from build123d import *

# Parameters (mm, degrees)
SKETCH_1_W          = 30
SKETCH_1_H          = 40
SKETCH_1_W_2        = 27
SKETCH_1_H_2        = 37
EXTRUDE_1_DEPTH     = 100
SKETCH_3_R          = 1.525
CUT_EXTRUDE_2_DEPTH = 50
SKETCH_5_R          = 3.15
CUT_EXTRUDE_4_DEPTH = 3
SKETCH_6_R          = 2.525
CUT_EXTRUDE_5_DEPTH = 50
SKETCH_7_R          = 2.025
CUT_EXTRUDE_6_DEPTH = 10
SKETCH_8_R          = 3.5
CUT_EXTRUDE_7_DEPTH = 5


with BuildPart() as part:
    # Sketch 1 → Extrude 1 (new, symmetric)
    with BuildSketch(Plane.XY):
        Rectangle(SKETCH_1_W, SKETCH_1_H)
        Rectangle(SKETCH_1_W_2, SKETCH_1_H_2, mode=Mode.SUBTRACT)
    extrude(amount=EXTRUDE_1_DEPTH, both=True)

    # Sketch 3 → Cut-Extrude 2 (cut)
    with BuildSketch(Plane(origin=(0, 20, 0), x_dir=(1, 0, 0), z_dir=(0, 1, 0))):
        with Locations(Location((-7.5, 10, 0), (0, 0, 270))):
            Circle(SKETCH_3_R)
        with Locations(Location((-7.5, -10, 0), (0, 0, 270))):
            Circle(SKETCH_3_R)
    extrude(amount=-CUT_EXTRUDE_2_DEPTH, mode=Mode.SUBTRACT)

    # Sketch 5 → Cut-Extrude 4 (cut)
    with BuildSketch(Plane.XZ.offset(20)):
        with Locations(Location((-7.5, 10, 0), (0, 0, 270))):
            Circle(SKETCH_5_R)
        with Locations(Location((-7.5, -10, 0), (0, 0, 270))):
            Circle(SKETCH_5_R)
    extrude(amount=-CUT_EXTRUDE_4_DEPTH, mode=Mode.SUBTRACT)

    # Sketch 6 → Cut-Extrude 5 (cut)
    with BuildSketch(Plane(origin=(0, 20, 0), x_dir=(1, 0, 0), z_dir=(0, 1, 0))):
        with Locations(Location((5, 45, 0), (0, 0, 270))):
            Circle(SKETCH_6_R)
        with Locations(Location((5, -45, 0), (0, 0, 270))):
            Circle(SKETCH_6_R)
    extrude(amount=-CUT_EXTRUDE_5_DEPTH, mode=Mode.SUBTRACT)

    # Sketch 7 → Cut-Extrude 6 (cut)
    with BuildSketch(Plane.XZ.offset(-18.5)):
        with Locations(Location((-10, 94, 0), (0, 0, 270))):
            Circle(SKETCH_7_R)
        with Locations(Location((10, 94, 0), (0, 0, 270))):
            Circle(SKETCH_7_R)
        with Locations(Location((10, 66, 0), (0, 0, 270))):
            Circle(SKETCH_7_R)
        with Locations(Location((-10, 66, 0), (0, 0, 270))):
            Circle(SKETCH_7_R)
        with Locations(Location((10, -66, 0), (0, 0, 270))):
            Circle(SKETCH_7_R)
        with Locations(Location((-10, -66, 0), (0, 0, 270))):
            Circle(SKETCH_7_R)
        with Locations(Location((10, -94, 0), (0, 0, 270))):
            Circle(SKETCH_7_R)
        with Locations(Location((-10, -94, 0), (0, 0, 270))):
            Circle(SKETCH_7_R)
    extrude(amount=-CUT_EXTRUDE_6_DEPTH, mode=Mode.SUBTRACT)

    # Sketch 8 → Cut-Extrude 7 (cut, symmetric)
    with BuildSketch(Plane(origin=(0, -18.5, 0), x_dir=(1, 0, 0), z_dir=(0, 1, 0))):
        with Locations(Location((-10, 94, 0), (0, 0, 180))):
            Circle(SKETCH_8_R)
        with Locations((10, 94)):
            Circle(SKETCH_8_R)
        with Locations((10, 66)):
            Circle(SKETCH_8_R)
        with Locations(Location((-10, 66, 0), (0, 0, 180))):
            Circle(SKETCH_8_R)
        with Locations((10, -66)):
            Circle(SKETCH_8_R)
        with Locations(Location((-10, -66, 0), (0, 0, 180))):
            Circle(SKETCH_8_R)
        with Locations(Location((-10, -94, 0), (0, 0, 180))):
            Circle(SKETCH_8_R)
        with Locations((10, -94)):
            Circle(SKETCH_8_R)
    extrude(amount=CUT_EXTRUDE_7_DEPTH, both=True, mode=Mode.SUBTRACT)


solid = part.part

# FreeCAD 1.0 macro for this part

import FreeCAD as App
import Part
import Sketcher

V = App.Vector

doc = App.newDocument("Part")
params = doc.addObject("Spreadsheet::Sheet", "Params")
for row, (alias, value) in enumerate([
    ("sketch1_width", "30 mm"),
    ("sketch1_width2", "27 mm"),
    ("sketch1_height", "40 mm"),
    ("sketch1_height2", "37 mm"),
    ("pad1_length", "200 mm"),
    ("sketch2_diameter", "3.05 mm"),
    ("pocket1_length", "50 mm"),
    ("sketch3_diameter", "6.3 mm"),
    ("pocket2_length", "3 mm"),
    ("sketch4_diameter", "5.05 mm"),
    ("pocket3_length", "50 mm"),
    ("sketch5_diameter", "4.05 mm"),
    ("pocket4_length", "10 mm"),
    ("sketch6_diameter", "7 mm"),
    ("pocket5_length", "10 mm"),
], start=1):
    params.set(f"A{row}", alias)
    params.set(f"B{row}", "=" + value)
    params.setAlias(f"B{row}", alias)

body = doc.addObject("PartDesign::Body", "Body")

sketch1 = doc.addObject("Sketcher::SketchObject", "Sketch")
body.addObject(sketch1)
sketch1.AttachmentSupport = (doc.XY_Plane, [""])
sketch1.MapMode = "FlatFace"
sketch1.addGeometry([
    Part.LineSegment(V(-15, 20, 0), V(-15, -20, 0)),
    Part.LineSegment(V(-15, -20, 0), V(15, -20, 0)),
    Part.LineSegment(V(15, -20, 0), V(15, 20, 0)),
    Part.LineSegment(V(15, 20, 0), V(-15, 20, 0)),
    Part.LineSegment(V(13.5, -18.5, 0), V(-13.5, -18.5, 0)),
    Part.LineSegment(V(-13.5, -18.5, 0), V(-13.5, 18.5, 0)),
    Part.LineSegment(V(-13.5, 18.5, 0), V(13.5, 18.5, 0)),
    Part.LineSegment(V(13.5, 18.5, 0), V(13.5, -18.5, 0)),
], False)
sketch1.addConstraint([
    Sketcher.Constraint("Coincident", 0, 2, 1, 1),
    Sketcher.Constraint("Coincident", 1, 2, 2, 1),
    Sketcher.Constraint("Coincident", 2, 2, 3, 1),
    Sketcher.Constraint("Coincident", 3, 2, 0, 1),
    Sketcher.Constraint("Coincident", 4, 2, 5, 1),
    Sketcher.Constraint("Coincident", 5, 2, 6, 1),
    Sketcher.Constraint("Coincident", 6, 2, 7, 1),
    Sketcher.Constraint("Coincident", 7, 2, 4, 1),
    Sketcher.Constraint("Vertical", 0),
    Sketcher.Constraint("Horizontal", 1),
    Sketcher.Constraint("Vertical", 2),
    Sketcher.Constraint("Horizontal", 3),
    Sketcher.Constraint("Horizontal", 4),
    Sketcher.Constraint("Vertical", 5),
    Sketcher.Constraint("Horizontal", 6),
    Sketcher.Constraint("Vertical", 7),
    Sketcher.Constraint("Symmetric", 0, 2, 2, 2, -1, 1),
    Sketcher.Constraint("Symmetric", 4, 2, 6, 2, -1, 1),
    Sketcher.Constraint("DistanceX", 1, 1, 1, 2, 30.0),
    Sketcher.Constraint("DistanceX", 4, 2, 4, 1, 27.0),
    Sketcher.Constraint("DistanceY", 0, 2, 0, 1, 40.0),
    Sketcher.Constraint("DistanceY", 5, 1, 5, 2, 37.0),
])
sketch1.setExpression("Constraints[18]", "Params.sketch1_width")
sketch1.setExpression("Constraints[19]", "Params.sketch1_width2")
sketch1.setExpression("Constraints[20]", "Params.sketch1_height")
sketch1.setExpression("Constraints[21]", "Params.sketch1_height2")
pad1 = doc.addObject("PartDesign::Pad", "Pad")
body.addObject(pad1)
pad1.Profile = sketch1
pad1.setExpression("Length", "Params.pad1_length")
pad1.Midplane = True

sketch2 = doc.addObject("Sketcher::SketchObject", "Sketch001")
body.addObject(sketch2)
sketch2.AttachmentSupport = (doc.XZ_Plane, [""])
sketch2.MapMode = "FlatFace"
sketch2.AttachmentOffset = App.Placement(V(0, 0, -20), App.Rotation())
sketch2.addGeometry([
    Part.Circle(V(-7.5, -10, 0), V(0, 0, 1), 1.525),
    Part.Circle(V(-7.5, 10, 0), V(0, 0, 1), 1.525),
], False)
sketch2.addConstraint([
    Sketcher.Constraint("Equal", 0, 1),
    Sketcher.Constraint("Symmetric", 0, 3, 1, 3, -1),
    Sketcher.Constraint("Diameter", 0, 3.05),
    Sketcher.Constraint("DistanceY", 0, 3, -1, 1, 10.0),
    Sketcher.Constraint("DistanceX", 0, 3, -1, 1, 7.5),
])
sketch2.setExpression("Constraints[2]", "Params.sketch2_diameter")
pocket1 = doc.addObject("PartDesign::Pocket", "Pocket")
body.addObject(pocket1)
pocket1.Profile = sketch2
pocket1.setExpression("Length", "Params.pocket1_length")
pocket1.Reversed = True

sketch3 = doc.addObject("Sketcher::SketchObject", "Sketch002")
body.addObject(sketch3)
sketch3.AttachmentSupport = (doc.XZ_Plane, [""])
sketch3.MapMode = "FlatFace"
sketch3.AttachmentOffset = App.Placement(V(0, 0, 20), App.Rotation())
sketch3.addGeometry([
    Part.Circle(V(-7.5, 10, 0), V(0, 0, 1), 3.15),
    Part.Circle(V(-7.5, -10, 0), V(0, 0, 1), 3.15),
], False)
sketch3.addConstraint([
    Sketcher.Constraint("Equal", 0, 1),
    Sketcher.Constraint("Symmetric", 0, 3, 1, 3, -1),
    Sketcher.Constraint("Diameter", 0, 6.3),
    Sketcher.Constraint("DistanceY", -1, 1, 0, 3, 10.0),
    Sketcher.Constraint("DistanceX", 0, 3, -1, 1, 7.5),
])
sketch3.setExpression("Constraints[2]", "Params.sketch3_diameter")
pocket2 = doc.addObject("PartDesign::Pocket", "Pocket001")
body.addObject(pocket2)
pocket2.Profile = sketch3
pocket2.setExpression("Length", "Params.pocket2_length")

sketch4 = doc.addObject("Sketcher::SketchObject", "Sketch003")
body.addObject(sketch4)
sketch4.AttachmentSupport = (doc.XZ_Plane, [""])
sketch4.MapMode = "FlatFace"
sketch4.AttachmentOffset = App.Placement(V(0, 0, -20), App.Rotation())
sketch4.addGeometry([
    Part.Circle(V(5, -45, 0), V(0, 0, 1), 2.525),
    Part.Circle(V(5, 45, 0), V(0, 0, 1), 2.525),
], False)
sketch4.addConstraint([
    Sketcher.Constraint("Equal", 0, 1),
    Sketcher.Constraint("Symmetric", 0, 3, 1, 3, -1),
    Sketcher.Constraint("Diameter", 0, 5.05),
    Sketcher.Constraint("DistanceX", -1, 1, 0, 3, 5.0),
    Sketcher.Constraint("DistanceY", 0, 3, -1, 1, 45.0),
])
sketch4.setExpression("Constraints[2]", "Params.sketch4_diameter")
pocket3 = doc.addObject("PartDesign::Pocket", "Pocket002")
body.addObject(pocket3)
pocket3.Profile = sketch4
pocket3.setExpression("Length", "Params.pocket3_length")
pocket3.Reversed = True

sketch5 = doc.addObject("Sketcher::SketchObject", "Sketch004")
body.addObject(sketch5)
sketch5.AttachmentSupport = (doc.XZ_Plane, [""])
sketch5.MapMode = "FlatFace"
sketch5.AttachmentOffset = App.Placement(V(0, 0, -18.5), App.Rotation())
sketch5.addGeometry([
    Part.Circle(V(-10, 94, 0), V(0, 0, 1), 2.025),
    Part.Circle(V(10, 94, 0), V(0, 0, 1), 2.025),
    Part.Circle(V(10, 66, 0), V(0, 0, 1), 2.025),
    Part.Circle(V(-10, 66, 0), V(0, 0, 1), 2.025),
    Part.Circle(V(10, -66, 0), V(0, 0, 1), 2.025),
    Part.Circle(V(-10, -66, 0), V(0, 0, 1), 2.025),
    Part.Circle(V(10, -94, 0), V(0, 0, 1), 2.025),
    Part.Circle(V(-10, -94, 0), V(0, 0, 1), 2.025),
], False)
sketch5.addConstraint([
    Sketcher.Constraint("Equal", 0, 1),
    Sketcher.Constraint("Equal", 1, 2),
    Sketcher.Constraint("Equal", 2, 3),
    Sketcher.Constraint("Equal", 3, 4),
    Sketcher.Constraint("Equal", 4, 5),
    Sketcher.Constraint("Equal", 5, 6),
    Sketcher.Constraint("Equal", 6, 7),
    Sketcher.Constraint("Symmetric", 3, 3, 4, 3, -1, 1),
    Sketcher.Constraint("Symmetric", 2, 3, 5, 3, -1, 1),
    Sketcher.Constraint("Symmetric", 0, 3, 6, 3, -1, 1),
    Sketcher.Constraint("Symmetric", 1, 3, 7, 3, -1, 1),
    Sketcher.Constraint("Symmetric", 0, 3, 1, 3, -2),
    Sketcher.Constraint("Symmetric", 2, 3, 3, 3, -2),
    Sketcher.Constraint("Vertical", 1, 3, 2, 3),
    Sketcher.Constraint("Diameter", 0, 4.05),
    Sketcher.Constraint("DistanceX", 0, 3, -1, 1, 10.0),
    Sketcher.Constraint("DistanceY", -1, 1, 0, 3, 94.0),
    Sketcher.Constraint("DistanceY", -1, 1, 2, 3, 66.0),
])
sketch5.setExpression("Constraints[14]", "Params.sketch5_diameter")
pocket4 = doc.addObject("PartDesign::Pocket", "Pocket003")
body.addObject(pocket4)
pocket4.Profile = sketch5
pocket4.setExpression("Length", "Params.pocket4_length")

sketch6 = doc.addObject("Sketcher::SketchObject", "Sketch005")
body.addObject(sketch6)
sketch6.AttachmentSupport = (doc.XZ_Plane, [""])
sketch6.MapMode = "FlatFace"
sketch6.AttachmentOffset = App.Placement(V(0, 0, 18.5), App.Rotation())
sketch6.addGeometry([
    Part.Circle(V(-10, -94, 0), V(0, 0, 1), 3.5),
    Part.Circle(V(10, -94, 0), V(0, 0, 1), 3.5),
    Part.Circle(V(10, -66, 0), V(0, 0, 1), 3.5),
    Part.Circle(V(-10, -66, 0), V(0, 0, 1), 3.5),
    Part.Circle(V(10, 66, 0), V(0, 0, 1), 3.5),
    Part.Circle(V(-10, 66, 0), V(0, 0, 1), 3.5),
    Part.Circle(V(-10, 94, 0), V(0, 0, 1), 3.5),
    Part.Circle(V(10, 94, 0), V(0, 0, 1), 3.5),
], False)
sketch6.addConstraint([
    Sketcher.Constraint("Equal", 0, 1),
    Sketcher.Constraint("Equal", 1, 2),
    Sketcher.Constraint("Equal", 2, 3),
    Sketcher.Constraint("Equal", 3, 4),
    Sketcher.Constraint("Equal", 4, 5),
    Sketcher.Constraint("Equal", 5, 6),
    Sketcher.Constraint("Equal", 6, 7),
    Sketcher.Constraint("Symmetric", 3, 3, 4, 3, -1, 1),
    Sketcher.Constraint("Symmetric", 2, 3, 5, 3, -1, 1),
    Sketcher.Constraint("Symmetric", 1, 3, 6, 3, -1, 1),
    Sketcher.Constraint("Symmetric", 0, 3, 7, 3, -1, 1),
    Sketcher.Constraint("Symmetric", 0, 3, 1, 3, -2),
    Sketcher.Constraint("Symmetric", 2, 3, 3, 3, -2),
    Sketcher.Constraint("Vertical", 1, 3, 2, 3),
    Sketcher.Constraint("Diameter", 0, 7.0),
    Sketcher.Constraint("DistanceX", 0, 3, -1, 1, 10.0),
    Sketcher.Constraint("DistanceY", 0, 3, -1, 1, 94.0),
    Sketcher.Constraint("DistanceY", 2, 3, -1, 1, 66.0),
])
sketch6.setExpression("Constraints[14]", "Params.sketch6_diameter")
pocket5 = doc.addObject("PartDesign::Pocket", "Pocket004")
body.addObject(pocket5)
pocket5.Profile = sketch6
pocket5.setExpression("Length", "Params.pocket5_length")
pocket5.Midplane = True

doc.recompute()
